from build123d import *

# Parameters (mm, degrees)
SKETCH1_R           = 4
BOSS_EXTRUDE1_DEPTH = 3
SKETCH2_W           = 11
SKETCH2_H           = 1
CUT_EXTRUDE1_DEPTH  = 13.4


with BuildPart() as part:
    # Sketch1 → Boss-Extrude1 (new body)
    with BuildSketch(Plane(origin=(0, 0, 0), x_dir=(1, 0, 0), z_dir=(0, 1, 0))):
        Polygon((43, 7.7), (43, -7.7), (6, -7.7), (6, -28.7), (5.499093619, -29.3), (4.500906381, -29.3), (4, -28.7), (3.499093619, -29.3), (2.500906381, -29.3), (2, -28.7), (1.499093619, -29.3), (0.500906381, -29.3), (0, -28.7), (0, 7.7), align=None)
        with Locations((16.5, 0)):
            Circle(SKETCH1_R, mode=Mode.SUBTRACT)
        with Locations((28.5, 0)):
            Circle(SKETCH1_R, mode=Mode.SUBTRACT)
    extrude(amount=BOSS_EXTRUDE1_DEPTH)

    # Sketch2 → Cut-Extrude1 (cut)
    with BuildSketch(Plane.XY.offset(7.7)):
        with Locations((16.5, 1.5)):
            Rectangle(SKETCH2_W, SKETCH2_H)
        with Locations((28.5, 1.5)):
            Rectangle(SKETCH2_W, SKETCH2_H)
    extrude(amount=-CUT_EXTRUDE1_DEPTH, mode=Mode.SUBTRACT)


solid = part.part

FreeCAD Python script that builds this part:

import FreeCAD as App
import Part
import Sketcher

V = App.Vector
Q = App.Units.Quantity


def add_polygon(sketch, points):
    """Adds a closed chain of lines whose ends are joined by coincident constraints."""
    first, n = sketch.GeometryCount, len(points)
    for a, b in zip(points, points[1:] + points[:1]):
        sketch.addGeometry(Part.LineSegment(App.Vector(*a, 0), App.Vector(*b, 0)), False)
    for i in range(n):
        sketch.addConstraint(Sketcher.Constraint("Coincident", first + i, 2, first + (i + 1) % n, 1))

doc = App.newDocument("Part")
params = doc.addObject("Spreadsheet::Sheet", "Params")
for row, (alias, value) in enumerate([
    ("sketch1_diameter", "8 mm"),
    ("sketch1_width", "43 mm"),
    ("sketch1_width2", "37 mm"),
    ("sketch1_height", "21 mm"),
    ("sketch1_height2", "15.4 mm"),
    ("pad1_length", "3 mm"),
    ("sketch2_width", "11 mm"),
    ("sketch2_height", "1 mm"),
    ("pocket1_length", "13.4 mm"),
], start=1):
    params.set(f"A{row}", alias)
    params.set(f"B{row}", "=" + value)
    params.setAlias(f"B{row}", alias)

body = doc.addObject("PartDesign::Body", "Body")

sketch1 = doc.addObject("Sketcher::SketchObject", "Sketch")
body.addObject(sketch1)
sketch1.AttachmentSupport = (doc.XZ_Plane, [""])
sketch1.MapMode = "FlatFace"
add_polygon(sketch1, [(43, 7.7), (43, -7.7), (0, -7.7), (0, 28.7), (0.5, 29.3), (1.5, 29.3), (2, 28.7), (2.5, 29.3), (3.5, 29.3), (4, 28.7), (4.5, 29.3), (5.5, 29.3), (6, 28.7), (6, 7.7)])
sketch1.addGeometry(Part.Circle(V(28.5, 0, 0), V(0, 0, 1), 4), False)
sketch1.addGeometry(Part.Circle(V(16.5, 0, 0), V(0, 0, 1), 4), False)
sketch1.addConstraint([
    Sketcher.Constraint("Vertical", 0),
    Sketcher.Constraint("Horizontal", 1),
    Sketcher.Constraint("Vertical", 2),
    Sketcher.Constraint("Horizontal", 4),
    Sketcher.Constraint("Horizontal", 7),
    Sketcher.Constraint("Horizontal", 10),
    Sketcher.Constraint("Vertical", 12),
    Sketcher.Constraint("Horizontal", 13),
    Sketcher.Constraint("Equal", 14, 15),
    Sketcher.Constraint("PointOnObject", 14, 3, -1),
    Sketcher.Constraint("PointOnObject", 15, 3, -1),
    Sketcher.Constraint("PointOnObject", 1, 2, -2),
    Sketcher.Constraint("Parallel", 3, 6),
    Sketcher.Constraint("Parallel", 5, 8),
    Sketcher.Constraint("Parallel", 6, 9),
    Sketcher.Constraint("Parallel", 8, 11),
    Sketcher.Constraint("Horizontal", 2, 2, 5, 2),
    Sketcher.Constraint("Horizontal", 4, 2, 6, 2),
    Sketcher.Constraint("Horizontal", 5, 2, 8, 2),
    Sketcher.Constraint("Horizontal", 7, 2, 9, 2),
    Sketcher.Constraint("Horizontal", 8, 2, 11, 2),
    Sketcher.Constraint("Equal", 4, 7),
    Sketcher.Constraint("Equal", 7, 10),
    Sketcher.Constraint("Equal", 3, 5),
    Sketcher.Constraint("Diameter", 14, Q("8 mm")),
    Sketcher.Constraint("DistanceX", 1, 2, 1, 1, Q("43 mm")),
    Sketcher.Constraint("DistanceX", 13, 1, 13, 2, Q("37 mm")),
    Sketcher.Constraint("DistanceY", 12, 2, 12, 1, Q("21 mm")),
    Sketcher.Constraint("DistanceY", 0, 2, 0, 1, Q("15.4 mm")),
    Sketcher.Constraint("DistanceX", 15, 3, 14, 3, Q("12 mm")),
    Sketcher.Constraint("DistanceY", 1, 2, 3, 2, Q("37 mm")),
    Sketcher.Constraint("DistanceX", -1, 1, 14, 3, Q("28.5 mm")),
    Sketcher.Constraint("DistanceY", 0, 2, -1, 1, Q("7.7 mm")),
    Sketcher.Constraint("DistanceX", 4, 1, 4, 2, Q("0.998187 mm")),
])
sketch1.setExpression("Constraints[38]", "Params.sketch1_diameter")
sketch1.setExpression("Constraints[39]", "Params.sketch1_width")
sketch1.setExpression("Constraints[40]", "Params.sketch1_width2")
sketch1.setExpression("Constraints[41]", "Params.sketch1_height")
sketch1.setExpression("Constraints[42]", "Params.sketch1_height2")
pad1 = doc.addObject("PartDesign::Pad", "Pad")
body.addObject(pad1)
pad1.Profile = sketch1
pad1.setExpression("Length", "Params.pad1_length")
pad1.Reversed = True

sketch2 = doc.addObject("Sketcher::SketchObject", "Sketch001")
body.addObject(sketch2)
sketch2.AttachmentSupport = (doc.XY_Plane, [""])
sketch2.MapMode = "FlatFace"
sketch2.AttachmentOffset = App.Placement(V(0, 0, 7.7), App.Rotation())
add_polygon(sketch2, [(11, 2), (11, 1), (22, 1), (22, 2)])
add_polygon(sketch2, [(23, 2), (23, 1), (34, 1), (34, 2)])
sketch2.addConstraint([
    Sketcher.Constraint("Vertical", 0),
    Sketcher.Constraint("Horizontal", 1),
    Sketcher.Constraint("Vertical", 2),
    Sketcher.Constraint("Horizontal", 3),
    Sketcher.Constraint("Vertical", 4),
    Sketcher.Constraint("Horizontal", 5),
    Sketcher.Constraint("Vertical", 6),
    Sketcher.Constraint("Horizontal", 7),
    Sketcher.Constraint("Horizontal", 1, 2, 4, 2),
    Sketcher.Constraint("Horizontal", 3, 2, 6, 2),
    Sketcher.Constraint("Equal", 3, 5),
    Sketcher.Constraint("DistanceX", 1, 1, 1, 2, Q("11 mm")),
    Sketcher.Constraint("DistanceY", 0, 2, 0, 1, Q("1 mm")),
    Sketcher.Constraint("DistanceX", -1, 1, 0, 2, Q("11 mm")),
    Sketcher.Constraint("DistanceY", -1, 1, 0, 2, Q("1 mm")),
    Sketcher.Constraint("DistanceX", -1, 1, 4, 2, Q("23 mm")),
])
sketch2.setExpression("Constraints[19]", "Params.sketch2_width")
sketch2.setExpression("Constraints[20]", "Params.sketch2_height")
pocket1 = doc.addObject("PartDesign::Pocket", "Pocket")
body.addObject(pocket1)
pocket1.Profile = sketch2
pocket1.setExpression("Length", "Params.pocket1_length")

doc.recompute()
